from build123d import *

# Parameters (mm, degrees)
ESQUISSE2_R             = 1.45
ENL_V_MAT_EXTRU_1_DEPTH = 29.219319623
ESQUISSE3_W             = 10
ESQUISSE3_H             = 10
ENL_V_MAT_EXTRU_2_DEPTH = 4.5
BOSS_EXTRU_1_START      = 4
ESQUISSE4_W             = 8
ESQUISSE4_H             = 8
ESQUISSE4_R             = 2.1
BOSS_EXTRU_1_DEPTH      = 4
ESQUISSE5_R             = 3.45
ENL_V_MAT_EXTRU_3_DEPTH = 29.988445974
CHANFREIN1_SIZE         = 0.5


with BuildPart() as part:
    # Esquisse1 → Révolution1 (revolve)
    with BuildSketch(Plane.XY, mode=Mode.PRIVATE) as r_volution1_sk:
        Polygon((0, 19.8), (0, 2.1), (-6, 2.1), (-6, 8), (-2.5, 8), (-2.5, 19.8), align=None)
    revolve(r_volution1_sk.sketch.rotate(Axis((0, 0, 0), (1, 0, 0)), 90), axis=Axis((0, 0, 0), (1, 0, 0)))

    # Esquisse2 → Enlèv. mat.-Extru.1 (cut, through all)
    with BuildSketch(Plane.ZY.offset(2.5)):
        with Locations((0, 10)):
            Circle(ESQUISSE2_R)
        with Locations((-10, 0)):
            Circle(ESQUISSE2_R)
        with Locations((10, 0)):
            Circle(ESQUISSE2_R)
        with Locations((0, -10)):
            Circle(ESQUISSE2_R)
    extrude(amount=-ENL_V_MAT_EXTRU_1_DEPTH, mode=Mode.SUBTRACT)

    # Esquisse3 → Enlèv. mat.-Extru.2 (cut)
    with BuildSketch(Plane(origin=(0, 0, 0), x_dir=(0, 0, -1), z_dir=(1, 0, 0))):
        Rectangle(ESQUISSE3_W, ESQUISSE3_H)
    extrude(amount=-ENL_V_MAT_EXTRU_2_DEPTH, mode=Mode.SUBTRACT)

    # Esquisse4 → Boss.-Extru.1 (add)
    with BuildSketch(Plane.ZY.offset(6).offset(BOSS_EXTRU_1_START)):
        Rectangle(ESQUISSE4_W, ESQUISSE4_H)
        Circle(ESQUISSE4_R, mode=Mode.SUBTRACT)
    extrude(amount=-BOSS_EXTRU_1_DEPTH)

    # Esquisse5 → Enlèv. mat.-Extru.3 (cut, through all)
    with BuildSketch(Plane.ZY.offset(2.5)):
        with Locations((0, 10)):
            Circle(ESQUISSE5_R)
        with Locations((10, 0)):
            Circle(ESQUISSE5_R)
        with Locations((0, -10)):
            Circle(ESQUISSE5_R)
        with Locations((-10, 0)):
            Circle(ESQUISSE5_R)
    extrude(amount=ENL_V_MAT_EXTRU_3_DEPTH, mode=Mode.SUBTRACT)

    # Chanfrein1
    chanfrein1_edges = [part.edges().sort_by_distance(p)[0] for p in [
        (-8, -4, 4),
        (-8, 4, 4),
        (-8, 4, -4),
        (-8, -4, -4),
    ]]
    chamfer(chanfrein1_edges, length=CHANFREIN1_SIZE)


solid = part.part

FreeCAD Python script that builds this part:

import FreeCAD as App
import Part
import Sketcher
Q = App.Units.Quantity


def edges_at(feature, points):
    """Names of the edges that pass closest to the given points."""
    edges = feature.Shape.Edges
    near = lambda p: min(range(len(edges)), key=lambda i: edges[i].distToShape(Part.Vertex(*p))[0])
    return sorted({f"Edge{near(p) + 1}" for p in points})

doc = App.newDocument("Part")
body = doc.addObject("PartDesign::Body", "Body")

# Sketch on XY plane
sketch1 = body.newObject("Sketcher::SketchObject", "Sketch")
sketch1.AttachmentSupport = (doc.getObject("XY_Plane"), [""])
sketch1.MapMode = "FlatFace"
sketch1.addGeometry([
    Part.LineSegment(App.Vector(0, 2.1, 0), App.Vector(0, 19.8, 0)),  # 0
    Part.LineSegment(App.Vector(0, 19.8, 0), App.Vector(-2.5, 19.8, 0)),  # 1
    Part.LineSegment(App.Vector(-2.5, 19.8, 0), App.Vector(-2.5, 8, 0)),  # 2
    Part.LineSegment(App.Vector(-2.5, 8, 0), App.Vector(-6, 8, 0)),  # 3
    Part.LineSegment(App.Vector(-6, 8, 0), App.Vector(-6, 2.1, 0)),  # 4
    Part.LineSegment(App.Vector(-6, 2.1, 0), App.Vector(0, 2.1, 0)),  # 5
], False)
sketch1.addConstraint([
    Sketcher.Constraint("Coincident", 0, 2, 1, 1),
    Sketcher.Constraint("Coincident", 1, 2, 2, 1),
    Sketcher.Constraint("Coincident", 2, 2, 3, 1),
    Sketcher.Constraint("Coincident", 3, 2, 4, 1),
    Sketcher.Constraint("Coincident", 4, 2, 5, 1),
    Sketcher.Constraint("Coincident", 5, 2, 0, 1),
    Sketcher.Constraint("Vertical", 0),
    Sketcher.Constraint("Horizontal", 1),
    Sketcher.Constraint("Vertical", 2),
    Sketcher.Constraint("Horizontal", 3),
    Sketcher.Constraint("Vertical", 4),
    Sketcher.Constraint("Horizontal", 5),
    Sketcher.Constraint("PointOnObject", 0, 2, -2),
    Sketcher.Constraint("DistanceX", 5, 1, 5, 2, Q("6 mm")),
    Sketcher.Constraint("DistanceX", 1, 2, 1, 1, Q("2.5 mm")),
    Sketcher.Constraint("DistanceY", 0, 1, 0, 2, Q("17.7 mm")),
    Sketcher.Constraint("DistanceY", 2, 2, 2, 1, Q("11.8 mm")),
    Sketcher.Constraint("DistanceY", -1, 1, 2, 2, Q("8 mm")),
])
revolution = body.newObject("PartDesign::Revolution", "Revolution")
revolution.Profile = sketch1
revolution.ReferenceAxis = (sketch1, ["H_Axis"])
revolution.Angle = 360

# Sketch on YZ plane
sketch2 = body.newObject("Sketcher::SketchObject", "Sketch001")
sketch2.AttachmentSupport = (doc.getObject("YZ_Plane"), [""])
sketch2.MapMode = "FlatFace"
sketch2.AttachmentOffset = App.Placement(App.Vector(0, 0, -2.5), App.Rotation())
sketch2.addGeometry([
    Part.Circle(App.Vector(10, 0, 0), App.Vector(0, 0, 1), 1.4),
    Part.Circle(App.Vector(0, -10, 0), App.Vector(0, 0, 1), 1.4),
    Part.Circle(App.Vector(0, 10, 0), App.Vector(0, 0, 1), 1.4),
    Part.Circle(App.Vector(-10, 0, 0), App.Vector(0, 0, 1), 1.4),
], False)
sketch2.addConstraint([
    Sketcher.Constraint("Equal", 0, 1),
    Sketcher.Constraint("Equal", 1, 2),
    Sketcher.Constraint("Equal", 2, 3),
    Sketcher.Constraint("Symmetric", 1, 3, 2, 3, -1, 1),
    Sketcher.Constraint("Symmetric", 0, 3, 3, 3, -1, 1),
    Sketcher.Constraint("PointOnObject", 0, 3, -1),
    Sketcher.Constraint("PointOnObject", 1, 3, -2),
    Sketcher.Constraint("Diameter", 0, Q("2.9 mm")),
    Sketcher.Constraint("DistanceX", -1, 1, 0, 3, Q("10 mm")),
    Sketcher.Constraint("DistanceY", 1, 3, -1, 1, Q("10 mm")),
])
pocket1 = body.newObject("PartDesign::Pocket", "Pocket")
pocket1.Profile = sketch2
pocket1.Type = "ThroughAll"
pocket1.Reversed = True

# Sketch on YZ plane
sketch3 = body.newObject("Sketcher::SketchObject", "Sketch002")
sketch3.AttachmentSupport = (doc.getObject("YZ_Plane"), [""])
sketch3.MapMode = "FlatFace"
sketch3.addGeometry([
    Part.LineSegment(App.Vector(5, 5, 0), App.Vector(-5, 5, 0)),
    Part.LineSegment(App.Vector(-5, 5, 0), App.Vector(-5, -5, 0)),
    Part.LineSegment(App.Vector(-5, -5, 0), App.Vector(5, -5, 0)),
    Part.LineSegment(App.Vector(5, -5, 0), App.Vector(5, 5, 0)),
], False)
sketch3.addConstraint([
    Sketcher.Constraint("Coincident", 0, 2, 1, 1),
    Sketcher.Constraint("Coincident", 1, 2, 2, 1),
    Sketcher.Constraint("Coincident", 2, 2, 3, 1),
    Sketcher.Constraint("Coincident", 3, 2, 0, 1),
    Sketcher.Constraint("Horizontal", 0),
    Sketcher.Constraint("Vertical", 1),
    Sketcher.Constraint("Horizontal", 2),
    Sketcher.Constraint("Vertical", 3),
    Sketcher.Constraint("Symmetric", 0, 2, 2, 2, -1, 1),
    Sketcher.Constraint("Equal", 2, 1),
    Sketcher.Constraint("DistanceX", 0, 2, 0, 1, Q("10 mm")),
])
pocket2 = body.newObject("PartDesign::Pocket", "Pocket001")
pocket2.Profile = sketch3
pocket2.Length = 4.5

# Sketch on YZ plane
sketch4 = body.newObject("Sketcher::SketchObject", "Sketch003")
sketch4.AttachmentSupport = (doc.getObject("YZ_Plane"), [""])
sketch4.MapMode = "FlatFace"
sketch4.AttachmentOffset = App.Placement(App.Vector(0, 0, -10), App.Rotation())
sketch4.addGeometry([
    Part.LineSegment(App.Vector(4, -4, 0), App.Vector(-4, -4, 0)),  # 0
    Part.LineSegment(App.Vector(-4, -4, 0), App.Vector(-4, 4, 0)),  # 1
    Part.LineSegment(App.Vector(-4, 4, 0), App.Vector(4, 4, 0)),  # 2
    Part.LineSegment(App.Vector(4, 4, 0), App.Vector(4, -4, 0)),  # 3
    Part.Circle(App.Vector(0, 0, 0), App.Vector(0, 0, 1), 2.1),  # 4
], False)
sketch4.addConstraint([
    Sketcher.Constraint("Coincident", 0, 2, 1, 1),
    Sketcher.Constraint("Coincident", 1, 2, 2, 1),
    Sketcher.Constraint("Coincident", 2, 2, 3, 1),
    Sketcher.Constraint("Coincident", 3, 2, 0, 1),
    Sketcher.Constraint("Horizontal", 0),
    Sketcher.Constraint("Vertical", 1),
    Sketcher.Constraint("Horizontal", 2),
    Sketcher.Constraint("Vertical", 3),
    Sketcher.Constraint("Coincident", 4, 3, -1, 1),
    Sketcher.Constraint("Symmetric", 0, 2, 2, 2, -1, 1),
    Sketcher.Constraint("Equal", 2, 1),
    Sketcher.Constraint("Diameter", 4, Q("4.2 mm")),
    Sketcher.Constraint("DistanceX", 0, 2, 0, 1, Q("8 mm")),
])
pad1 = body.newObject("PartDesign::Pad", "Pad")
pad1.Profile = sketch4
pad1.Length = 4

# Sketch on YZ plane
sketch5 = body.newObject("Sketcher::SketchObject", "Sketch004")
sketch5.AttachmentSupport = (doc.getObject("YZ_Plane"), [""])
sketch5.MapMode = "FlatFace"
sketch5.AttachmentOffset = App.Placement(App.Vector(0, 0, -2.5), App.Rotation())
sketch5.addGeometry([
    Part.Circle(App.Vector(10, 0, 0), App.Vector(0, 0, 1), 3.5),
    Part.Circle(App.Vector(0, 10, 0), App.Vector(0, 0, 1), 3.5),
    Part.Circle(App.Vector(-10, 0, 0), App.Vector(0, 0, 1), 3.5),
    Part.Circle(App.Vector(0, -10, 0), App.Vector(0, 0, 1), 3.5),
], False)
sketch5.addConstraint([
    Sketcher.Constraint("Equal", 0, 1),
    Sketcher.Constraint("Equal", 1, 2),
    Sketcher.Constraint("Equal", 2, 3),
    Sketcher.Constraint("Symmetric", 0, 3, 2, 3, -1, 1),
    Sketcher.Constraint("Symmetric", 1, 3, 3, 3, -1, 1),
    Sketcher.Constraint("PointOnObject", 0, 3, -1),
    Sketcher.Constraint("PointOnObject", 1, 3, -2),
    Sketcher.Constraint("Diameter", 0, Q("6.9 mm")),
    Sketcher.Constraint("DistanceX", -1, 1, 0, 3, Q("10 mm")),
    Sketcher.Constraint("DistanceY", -1, 1, 1, 3, Q("10 mm")),
])
pocket3 = body.newObject("PartDesign::Pocket", "Pocket002")
pocket3.Profile = sketch5
pocket3.Type = "ThroughAll"
doc.recompute()

chamfer = body.newObject("PartDesign::Chamfer", "Chamfer")
chamfer.Base = (pocket3, edges_at(pocket3, [
    (-8, -4, 4),
    (-8, 4, 4),
    (-8, 4, -4),
    (-8, -4, -4),
]))
chamfer.Size = 0.5

doc.recompute()
